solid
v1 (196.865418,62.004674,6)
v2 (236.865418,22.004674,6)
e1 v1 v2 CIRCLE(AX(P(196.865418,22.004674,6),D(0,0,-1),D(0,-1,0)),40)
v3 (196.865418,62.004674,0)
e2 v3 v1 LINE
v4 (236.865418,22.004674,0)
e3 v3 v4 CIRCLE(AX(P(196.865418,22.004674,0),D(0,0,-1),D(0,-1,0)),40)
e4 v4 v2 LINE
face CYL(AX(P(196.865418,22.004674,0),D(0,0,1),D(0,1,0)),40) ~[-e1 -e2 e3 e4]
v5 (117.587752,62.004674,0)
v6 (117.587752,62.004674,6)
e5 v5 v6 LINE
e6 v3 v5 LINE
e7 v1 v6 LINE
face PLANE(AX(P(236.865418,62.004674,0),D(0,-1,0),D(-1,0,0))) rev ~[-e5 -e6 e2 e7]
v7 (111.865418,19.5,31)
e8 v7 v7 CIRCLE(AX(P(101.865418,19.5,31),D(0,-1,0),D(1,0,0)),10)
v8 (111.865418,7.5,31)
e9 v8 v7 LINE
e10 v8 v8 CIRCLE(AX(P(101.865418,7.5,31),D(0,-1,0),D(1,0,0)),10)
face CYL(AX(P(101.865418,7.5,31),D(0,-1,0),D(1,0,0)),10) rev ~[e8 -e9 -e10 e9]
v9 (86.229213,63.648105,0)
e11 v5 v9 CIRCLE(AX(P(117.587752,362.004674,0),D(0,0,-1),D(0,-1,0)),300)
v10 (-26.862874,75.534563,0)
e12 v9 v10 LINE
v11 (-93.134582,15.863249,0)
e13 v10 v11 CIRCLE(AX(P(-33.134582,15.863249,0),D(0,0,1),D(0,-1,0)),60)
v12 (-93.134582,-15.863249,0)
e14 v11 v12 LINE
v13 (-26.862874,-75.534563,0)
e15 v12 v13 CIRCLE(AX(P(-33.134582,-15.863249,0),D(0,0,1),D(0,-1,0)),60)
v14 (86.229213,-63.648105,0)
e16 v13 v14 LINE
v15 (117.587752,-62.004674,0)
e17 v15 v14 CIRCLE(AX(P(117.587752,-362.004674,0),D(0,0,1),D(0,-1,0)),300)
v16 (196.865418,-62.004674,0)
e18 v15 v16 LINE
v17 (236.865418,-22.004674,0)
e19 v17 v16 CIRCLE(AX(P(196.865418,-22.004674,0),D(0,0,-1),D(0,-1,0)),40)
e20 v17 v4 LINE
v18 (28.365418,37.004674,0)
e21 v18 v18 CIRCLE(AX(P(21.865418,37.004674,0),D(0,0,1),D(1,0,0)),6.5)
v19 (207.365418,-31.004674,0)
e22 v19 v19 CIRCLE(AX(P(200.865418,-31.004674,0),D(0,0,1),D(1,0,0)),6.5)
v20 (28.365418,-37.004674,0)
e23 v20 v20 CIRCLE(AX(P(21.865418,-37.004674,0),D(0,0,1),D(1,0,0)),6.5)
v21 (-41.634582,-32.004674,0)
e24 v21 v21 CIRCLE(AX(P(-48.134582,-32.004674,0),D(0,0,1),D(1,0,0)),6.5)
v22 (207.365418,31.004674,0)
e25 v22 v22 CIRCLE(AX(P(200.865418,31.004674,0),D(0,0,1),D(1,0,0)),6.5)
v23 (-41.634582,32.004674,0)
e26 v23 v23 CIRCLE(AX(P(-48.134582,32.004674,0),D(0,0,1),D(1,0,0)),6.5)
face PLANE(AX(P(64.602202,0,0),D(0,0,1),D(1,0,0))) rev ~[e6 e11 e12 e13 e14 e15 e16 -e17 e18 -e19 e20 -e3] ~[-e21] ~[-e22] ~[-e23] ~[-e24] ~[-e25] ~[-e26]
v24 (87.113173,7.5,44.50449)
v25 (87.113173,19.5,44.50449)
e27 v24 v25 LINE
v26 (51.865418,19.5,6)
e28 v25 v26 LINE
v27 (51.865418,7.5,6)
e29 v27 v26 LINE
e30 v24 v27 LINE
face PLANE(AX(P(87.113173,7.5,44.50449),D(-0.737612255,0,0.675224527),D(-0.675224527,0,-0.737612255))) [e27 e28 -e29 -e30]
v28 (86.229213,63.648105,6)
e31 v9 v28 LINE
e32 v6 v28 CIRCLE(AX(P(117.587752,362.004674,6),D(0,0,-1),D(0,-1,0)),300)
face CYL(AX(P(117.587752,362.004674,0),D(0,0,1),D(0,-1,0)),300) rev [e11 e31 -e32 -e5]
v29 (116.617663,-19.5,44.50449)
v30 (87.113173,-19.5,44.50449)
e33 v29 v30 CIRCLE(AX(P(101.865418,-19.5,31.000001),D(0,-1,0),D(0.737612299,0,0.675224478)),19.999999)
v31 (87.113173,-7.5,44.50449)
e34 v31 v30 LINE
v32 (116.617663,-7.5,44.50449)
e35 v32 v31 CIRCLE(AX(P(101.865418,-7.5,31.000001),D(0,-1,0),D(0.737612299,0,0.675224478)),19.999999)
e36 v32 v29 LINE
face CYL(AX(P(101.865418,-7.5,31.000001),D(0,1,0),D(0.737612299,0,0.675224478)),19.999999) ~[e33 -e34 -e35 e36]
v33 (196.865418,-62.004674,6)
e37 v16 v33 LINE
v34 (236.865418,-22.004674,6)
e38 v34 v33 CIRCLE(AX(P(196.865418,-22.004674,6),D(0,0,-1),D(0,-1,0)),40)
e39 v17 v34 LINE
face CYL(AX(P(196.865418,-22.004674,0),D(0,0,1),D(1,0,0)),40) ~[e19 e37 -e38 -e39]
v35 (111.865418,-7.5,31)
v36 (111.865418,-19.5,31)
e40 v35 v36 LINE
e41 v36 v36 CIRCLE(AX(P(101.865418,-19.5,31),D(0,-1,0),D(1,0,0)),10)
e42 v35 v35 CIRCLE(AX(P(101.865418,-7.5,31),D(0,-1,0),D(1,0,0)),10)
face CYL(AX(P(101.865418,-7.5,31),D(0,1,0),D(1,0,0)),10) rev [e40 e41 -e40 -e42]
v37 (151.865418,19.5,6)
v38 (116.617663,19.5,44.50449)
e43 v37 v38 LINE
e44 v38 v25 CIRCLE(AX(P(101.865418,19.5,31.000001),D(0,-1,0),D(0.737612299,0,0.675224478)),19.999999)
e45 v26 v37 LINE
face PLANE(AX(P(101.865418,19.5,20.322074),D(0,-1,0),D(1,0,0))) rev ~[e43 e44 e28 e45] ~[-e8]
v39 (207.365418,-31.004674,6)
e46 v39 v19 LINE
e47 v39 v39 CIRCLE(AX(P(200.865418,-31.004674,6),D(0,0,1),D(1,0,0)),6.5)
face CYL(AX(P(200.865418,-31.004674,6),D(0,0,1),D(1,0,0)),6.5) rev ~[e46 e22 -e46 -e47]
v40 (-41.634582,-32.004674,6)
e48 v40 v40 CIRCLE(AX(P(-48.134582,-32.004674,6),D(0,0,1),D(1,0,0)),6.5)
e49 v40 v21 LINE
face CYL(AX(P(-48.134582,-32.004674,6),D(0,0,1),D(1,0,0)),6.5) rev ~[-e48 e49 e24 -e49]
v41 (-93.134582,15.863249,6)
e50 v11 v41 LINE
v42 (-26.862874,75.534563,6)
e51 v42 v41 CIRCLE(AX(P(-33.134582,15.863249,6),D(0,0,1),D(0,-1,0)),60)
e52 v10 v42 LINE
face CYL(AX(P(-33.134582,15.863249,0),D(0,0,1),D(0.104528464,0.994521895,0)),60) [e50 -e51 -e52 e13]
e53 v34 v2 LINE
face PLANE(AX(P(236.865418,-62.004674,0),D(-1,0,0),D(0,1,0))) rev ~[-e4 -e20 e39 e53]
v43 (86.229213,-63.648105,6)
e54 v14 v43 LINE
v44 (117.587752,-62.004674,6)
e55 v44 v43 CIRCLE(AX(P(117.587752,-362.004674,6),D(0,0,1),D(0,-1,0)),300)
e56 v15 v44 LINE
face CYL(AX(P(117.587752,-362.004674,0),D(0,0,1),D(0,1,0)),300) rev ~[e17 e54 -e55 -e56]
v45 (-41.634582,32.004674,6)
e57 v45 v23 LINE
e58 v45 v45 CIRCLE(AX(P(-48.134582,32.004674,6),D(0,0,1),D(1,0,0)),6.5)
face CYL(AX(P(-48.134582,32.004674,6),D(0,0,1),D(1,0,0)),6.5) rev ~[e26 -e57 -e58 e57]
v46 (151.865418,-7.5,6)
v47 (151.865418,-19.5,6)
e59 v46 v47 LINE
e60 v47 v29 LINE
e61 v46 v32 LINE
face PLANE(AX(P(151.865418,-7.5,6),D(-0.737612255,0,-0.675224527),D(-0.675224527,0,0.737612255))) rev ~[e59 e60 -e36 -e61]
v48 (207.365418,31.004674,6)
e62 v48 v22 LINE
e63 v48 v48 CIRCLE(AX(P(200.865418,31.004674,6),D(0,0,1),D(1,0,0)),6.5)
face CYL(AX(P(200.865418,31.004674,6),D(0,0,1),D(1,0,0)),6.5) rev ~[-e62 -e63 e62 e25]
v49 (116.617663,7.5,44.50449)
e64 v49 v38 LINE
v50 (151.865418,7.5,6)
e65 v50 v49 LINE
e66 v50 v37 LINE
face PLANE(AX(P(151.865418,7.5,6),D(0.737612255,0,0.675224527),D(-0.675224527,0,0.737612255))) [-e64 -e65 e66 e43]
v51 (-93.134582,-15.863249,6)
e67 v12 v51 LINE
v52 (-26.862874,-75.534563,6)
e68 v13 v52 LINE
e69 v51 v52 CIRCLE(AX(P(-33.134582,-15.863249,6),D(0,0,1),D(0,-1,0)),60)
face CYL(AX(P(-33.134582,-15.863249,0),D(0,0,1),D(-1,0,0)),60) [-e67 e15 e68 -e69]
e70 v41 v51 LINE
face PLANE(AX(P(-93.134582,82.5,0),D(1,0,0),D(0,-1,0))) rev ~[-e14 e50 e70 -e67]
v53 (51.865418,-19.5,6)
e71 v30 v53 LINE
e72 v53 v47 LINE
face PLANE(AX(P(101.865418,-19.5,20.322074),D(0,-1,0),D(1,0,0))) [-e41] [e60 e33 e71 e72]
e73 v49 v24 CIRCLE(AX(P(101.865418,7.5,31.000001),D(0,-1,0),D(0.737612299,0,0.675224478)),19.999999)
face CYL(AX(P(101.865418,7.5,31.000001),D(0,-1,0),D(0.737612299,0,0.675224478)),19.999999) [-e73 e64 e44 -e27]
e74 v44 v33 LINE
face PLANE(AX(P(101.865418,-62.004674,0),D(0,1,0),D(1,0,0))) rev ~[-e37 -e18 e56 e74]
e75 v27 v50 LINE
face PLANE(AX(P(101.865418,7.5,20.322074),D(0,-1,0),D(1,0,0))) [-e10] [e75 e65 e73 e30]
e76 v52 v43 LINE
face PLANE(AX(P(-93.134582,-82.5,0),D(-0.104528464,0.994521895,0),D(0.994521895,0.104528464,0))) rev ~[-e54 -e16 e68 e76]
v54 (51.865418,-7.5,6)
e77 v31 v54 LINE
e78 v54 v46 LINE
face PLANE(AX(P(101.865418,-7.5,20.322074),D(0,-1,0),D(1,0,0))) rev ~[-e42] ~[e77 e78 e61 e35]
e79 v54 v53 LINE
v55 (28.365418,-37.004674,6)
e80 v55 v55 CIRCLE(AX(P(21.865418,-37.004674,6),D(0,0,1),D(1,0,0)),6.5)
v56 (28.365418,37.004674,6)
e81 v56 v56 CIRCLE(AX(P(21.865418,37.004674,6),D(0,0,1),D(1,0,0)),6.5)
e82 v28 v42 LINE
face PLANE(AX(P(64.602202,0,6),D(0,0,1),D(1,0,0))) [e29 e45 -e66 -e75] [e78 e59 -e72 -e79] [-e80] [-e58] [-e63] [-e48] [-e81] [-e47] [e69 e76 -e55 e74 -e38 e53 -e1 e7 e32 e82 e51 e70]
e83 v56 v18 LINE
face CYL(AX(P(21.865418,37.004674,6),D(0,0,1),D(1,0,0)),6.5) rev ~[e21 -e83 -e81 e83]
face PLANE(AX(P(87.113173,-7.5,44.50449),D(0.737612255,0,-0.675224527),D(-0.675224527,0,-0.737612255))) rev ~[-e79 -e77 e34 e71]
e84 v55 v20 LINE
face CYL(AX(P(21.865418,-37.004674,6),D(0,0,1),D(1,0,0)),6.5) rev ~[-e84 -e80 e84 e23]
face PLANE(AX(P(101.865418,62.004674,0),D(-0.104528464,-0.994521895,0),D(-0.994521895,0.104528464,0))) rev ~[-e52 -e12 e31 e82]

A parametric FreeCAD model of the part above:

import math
import FreeCAD as App
import Part
import Sketcher
from FreeCAD import Vector
Q = App.Units.Quantity


def edges_at(feature, points):
    """Names of the edges that pass closest to the given points."""
    edges = feature.Shape.Edges
    near = lambda p: min(range(len(edges)), key=lambda i: edges[i].distToShape(Part.Vertex(*p))[0])
    return sorted({f"Edge{near(p) + 1}" for p in points})

doc = App.newDocument("Part")
body = doc.addObject("PartDesign::Body", "Body")

# Sketch on XY plane
sketch1 = body.newObject("Sketcher::SketchObject", "Sketch")
sketch1.AttachmentSupport = (doc.getObject("XY_Plane"), [""])
sketch1.MapMode = "FlatFace"
sketch1.addGeometry([
    Part.LineSegment(Vector(102, 62, 0), Vector(-93, 82, 0)),  # 0
    Part.LineSegment(Vector(-93, 82, 0), Vector(-93, -82, 0)),  # 1
    Part.LineSegment(Vector(-93, -82, 0), Vector(102, -62, 0)),  # 2
    Part.LineSegment(Vector(102, -62, 0), Vector(237, -62, 0)),  # 3
    Part.LineSegment(Vector(237, -62, 0), Vector(237, 62, 0)),  # 4
    Part.LineSegment(Vector(237, 62, 0), Vector(102, 62, 0)),  # 5
], False)
sketch1.addConstraint([
    Sketcher.Constraint("Coincident", 0, 2, 1, 1),
    Sketcher.Constraint("Coincident", 1, 2, 2, 1),
    Sketcher.Constraint("Coincident", 2, 2, 3, 1),
    Sketcher.Constraint("Coincident", 3, 2, 4, 1),
    Sketcher.Constraint("Coincident", 4, 2, 5, 1),
    Sketcher.Constraint("Coincident", 5, 2, 0, 1),
    Sketcher.Constraint("Vertical", 1),
    Sketcher.Constraint("Horizontal", 3),
    Sketcher.Constraint("Vertical", 4),
    Sketcher.Constraint("Horizontal", 5),
    Sketcher.Constraint("Symmetric", 2, 2, 5, 2, -1),
    Sketcher.Constraint("Equal", 0, 2),
    Sketcher.Constraint("DistanceX", 3, 1, 3, 2, 135.0),
    Sketcher.Constraint("DistanceY", 1, 2, 1, 1, 165.0),
    Sketcher.Constraint("Angle", 0, Q("174 deg")),
    Sketcher.Constraint("DistanceX", 1, 2, 2, 2, 195.0),
    Sketcher.Constraint("DistanceX", 0, 2, -1, 1, 93.134582),
])
pad1 = body.newObject("PartDesign::Pad", "Pad")
pad1.Profile = sketch1
pad1.Length = 6
doc.recompute()

fillet = body.newObject("PartDesign::Fillet", "Fillet")
fillet.Base = (pad1, edges_at(pad1, [(-93.135, -82.5, 3), (-93.135, 82.5, 3)]))
fillet.Radius = 60
doc.recompute()

fillet2 = body.newObject("PartDesign::Fillet", "Fillet001")
fillet2.Base = (fillet, edges_at(fillet, [(236.865, -62.005, 3), (236.865, 62.005, 3)]))
fillet2.Radius = 40
doc.recompute()

fillet3 = body.newObject("PartDesign::Fillet", "Fillet002")
fillet3.Base = (fillet2, edges_at(fillet2, [(101.865, -62.005, 3), (101.865, 62.005, 3)]))
fillet3.Radius = 300

# Sketch on XZ plane
sketch2 = body.newObject("Sketcher::SketchObject", "Sketch001")
sketch2.AttachmentSupport = (doc.getObject("XZ_Plane"), [""])
sketch2.MapMode = "FlatFace"
sketch2.AttachmentOffset = App.Placement(Vector(0, 0, -7.5), App.Rotation())
sketch2.addGeometry([
    Part.LineSegment(Vector(152, 6, 0), Vector(117, 45, 0)),  # 0
    Part.ArcOfCircle(Part.Circle(Vector(102, 31, 0), Vector(0, 0, 1), 20), math.radians(42), math.radians(138)),  # 1
    Part.LineSegment(Vector(87, 45, 0), Vector(52, 6, 0)),  # 2
    Part.LineSegment(Vector(52, 6, 0), Vector(152, 6, 0)),  # 3
    Part.Circle(Vector(102, 31, 0), Vector(0, 0, 1), 10),  # 4
], False)
sketch2.addConstraint([
    Sketcher.Constraint("Tangent", 0, 2, 1, 1),
    Sketcher.Constraint("Tangent", 1, 2, 2, 1),
    Sketcher.Constraint("Coincident", 2, 2, 3, 1),
    Sketcher.Constraint("Coincident", 3, 2, 0, 1),
    Sketcher.Constraint("Horizontal", 3),
    Sketcher.Constraint("Coincident", 4, 3, 1, 3),
    Sketcher.Constraint("Horizontal", 0, 2, 1, 2),
    Sketcher.Constraint("Diameter", 4, 20.0),
    Sketcher.Constraint("Radius", 1, 19.999999),
    Sketcher.Constraint("DistanceX", 3, 1, 3, 2, 100.0),
    Sketcher.Constraint("DistanceY", -1, 1, 1, 3, 31.000001),
    Sketcher.Constraint("DistanceY", -1, 1, 2, 2, 6.0),
    Sketcher.Constraint("DistanceX", -1, 1, 1, 3, 101.865418),
])
pad2 = body.newObject("PartDesign::Pad", "Pad001")
pad2.Profile = sketch2
pad2.Length = 12
pad2.Reversed = True

# Sketch on XZ plane
sketch3 = body.newObject("Sketcher::SketchObject", "Sketch002")
sketch3.AttachmentSupport = (doc.getObject("XZ_Plane"), [""])
sketch3.MapMode = "FlatFace"
sketch3.AttachmentOffset = App.Placement(Vector(0, 0, 7.5), App.Rotation())
sketch3.addGeometry([
    Part.LineSegment(Vector(152, 6, 0), Vector(117, 45, 0)),  # 0
    Part.ArcOfCircle(Part.Circle(Vector(102, 31, 0), Vector(0, 0, 1), 20), math.radians(42), math.radians(138)),  # 1
    Part.LineSegment(Vector(87, 45, 0), Vector(52, 6, 0)),  # 2
    Part.LineSegment(Vector(52, 6, 0), Vector(152, 6, 0)),  # 3
    Part.Circle(Vector(102, 31, 0), Vector(0, 0, 1), 10),  # 4
], False)
sketch3.addConstraint([
    Sketcher.Constraint("Tangent", 0, 2, 1, 1),
    Sketcher.Constraint("Tangent", 1, 2, 2, 1),
    Sketcher.Constraint("Coincident", 2, 2, 3, 1),
    Sketcher.Constraint("Coincident", 3, 2, 0, 1),
    Sketcher.Constraint("Horizontal", 3),
    Sketcher.Constraint("Coincident", 4, 3, 1, 3),
    Sketcher.Constraint("Horizontal", 0, 2, 1, 2),
    Sketcher.Constraint("Diameter", 4, 20.0),
    Sketcher.Constraint("Radius", 1, 19.999999),
    Sketcher.Constraint("DistanceX", 3, 1, 3, 2, 100.0),
    Sketcher.Constraint("DistanceY", -1, 1, 1, 3, 31.000001),
    Sketcher.Constraint("DistanceY", -1, 1, 2, 2, 6.0),
    Sketcher.Constraint("DistanceX", -1, 1, 1, 3, 101.865418),
])
pad3 = body.newObject("PartDesign::Pad", "Pad002")
pad3.Profile = sketch3
pad3.Length = 12

# Sketch on XY plane
sketch4 = body.newObject("Sketcher::SketchObject", "Sketch003")
sketch4.AttachmentSupport = (doc.getObject("XY_Plane"), [""])
sketch4.MapMode = "FlatFace"
sketch4.AttachmentOffset = App.Placement(Vector(0, 0, 6), App.Rotation())
sketch4.addGeometry([
    Part.Circle(Vector(201, 31, 0), Vector(0, 0, 1), 6),  # 0
    Part.Circle(Vector(201, -31, 0), Vector(0, 0, 1), 6),  # 1
    Part.Circle(Vector(22, 37, 0), Vector(0, 0, 1), 6),  # 2
    Part.Circle(Vector(-48, 32, 0), Vector(0, 0, 1), 6),  # 3
    Part.Circle(Vector(-48, -32, 0), Vector(0, 0, 1), 6),  # 4
    Part.Circle(Vector(22, -37, 0), Vector(0, 0, 1), 6),  # 5
], False)
sketch4.addConstraint([
    Sketcher.Constraint("Equal", 0, 1),
    Sketcher.Constraint("Equal", 1, 2),
    Sketcher.Constraint("Equal", 2, 3),
    Sketcher.Constraint("Equal", 3, 4),
    Sketcher.Constraint("Equal", 4, 5),
    Sketcher.Constraint("Symmetric", 0, 3, 1, 3, -1),
    Sketcher.Constraint("Symmetric", 3, 3, 4, 3, -1),
    Sketcher.Constraint("Symmetric", 2, 3, 5, 3, -1),
    Sketcher.Constraint("Diameter", 0, 13.0),
    Sketcher.Constraint("DistanceX", 2, 3, 0, 3, 179.0),
    Sketcher.Constraint("DistanceY", 0, 3, 2, 3, 6.0),
    Sketcher.Constraint("DistanceX", 3, 3, 2, 3, 70.0),
    Sketcher.Constraint("DistanceY", 3, 3, 2, 3, 5.0),
    Sketcher.Constraint("DistanceX", -1, 1, 0, 3, 200.865418),
    Sketcher.Constraint("DistanceY", 1, 3, 0, 3, 62.009348),
])
pocket1 = body.newObject("PartDesign::Pocket", "Pocket")
pocket1.Profile = sketch4
pocket1.Length = 25

doc.recompute()
